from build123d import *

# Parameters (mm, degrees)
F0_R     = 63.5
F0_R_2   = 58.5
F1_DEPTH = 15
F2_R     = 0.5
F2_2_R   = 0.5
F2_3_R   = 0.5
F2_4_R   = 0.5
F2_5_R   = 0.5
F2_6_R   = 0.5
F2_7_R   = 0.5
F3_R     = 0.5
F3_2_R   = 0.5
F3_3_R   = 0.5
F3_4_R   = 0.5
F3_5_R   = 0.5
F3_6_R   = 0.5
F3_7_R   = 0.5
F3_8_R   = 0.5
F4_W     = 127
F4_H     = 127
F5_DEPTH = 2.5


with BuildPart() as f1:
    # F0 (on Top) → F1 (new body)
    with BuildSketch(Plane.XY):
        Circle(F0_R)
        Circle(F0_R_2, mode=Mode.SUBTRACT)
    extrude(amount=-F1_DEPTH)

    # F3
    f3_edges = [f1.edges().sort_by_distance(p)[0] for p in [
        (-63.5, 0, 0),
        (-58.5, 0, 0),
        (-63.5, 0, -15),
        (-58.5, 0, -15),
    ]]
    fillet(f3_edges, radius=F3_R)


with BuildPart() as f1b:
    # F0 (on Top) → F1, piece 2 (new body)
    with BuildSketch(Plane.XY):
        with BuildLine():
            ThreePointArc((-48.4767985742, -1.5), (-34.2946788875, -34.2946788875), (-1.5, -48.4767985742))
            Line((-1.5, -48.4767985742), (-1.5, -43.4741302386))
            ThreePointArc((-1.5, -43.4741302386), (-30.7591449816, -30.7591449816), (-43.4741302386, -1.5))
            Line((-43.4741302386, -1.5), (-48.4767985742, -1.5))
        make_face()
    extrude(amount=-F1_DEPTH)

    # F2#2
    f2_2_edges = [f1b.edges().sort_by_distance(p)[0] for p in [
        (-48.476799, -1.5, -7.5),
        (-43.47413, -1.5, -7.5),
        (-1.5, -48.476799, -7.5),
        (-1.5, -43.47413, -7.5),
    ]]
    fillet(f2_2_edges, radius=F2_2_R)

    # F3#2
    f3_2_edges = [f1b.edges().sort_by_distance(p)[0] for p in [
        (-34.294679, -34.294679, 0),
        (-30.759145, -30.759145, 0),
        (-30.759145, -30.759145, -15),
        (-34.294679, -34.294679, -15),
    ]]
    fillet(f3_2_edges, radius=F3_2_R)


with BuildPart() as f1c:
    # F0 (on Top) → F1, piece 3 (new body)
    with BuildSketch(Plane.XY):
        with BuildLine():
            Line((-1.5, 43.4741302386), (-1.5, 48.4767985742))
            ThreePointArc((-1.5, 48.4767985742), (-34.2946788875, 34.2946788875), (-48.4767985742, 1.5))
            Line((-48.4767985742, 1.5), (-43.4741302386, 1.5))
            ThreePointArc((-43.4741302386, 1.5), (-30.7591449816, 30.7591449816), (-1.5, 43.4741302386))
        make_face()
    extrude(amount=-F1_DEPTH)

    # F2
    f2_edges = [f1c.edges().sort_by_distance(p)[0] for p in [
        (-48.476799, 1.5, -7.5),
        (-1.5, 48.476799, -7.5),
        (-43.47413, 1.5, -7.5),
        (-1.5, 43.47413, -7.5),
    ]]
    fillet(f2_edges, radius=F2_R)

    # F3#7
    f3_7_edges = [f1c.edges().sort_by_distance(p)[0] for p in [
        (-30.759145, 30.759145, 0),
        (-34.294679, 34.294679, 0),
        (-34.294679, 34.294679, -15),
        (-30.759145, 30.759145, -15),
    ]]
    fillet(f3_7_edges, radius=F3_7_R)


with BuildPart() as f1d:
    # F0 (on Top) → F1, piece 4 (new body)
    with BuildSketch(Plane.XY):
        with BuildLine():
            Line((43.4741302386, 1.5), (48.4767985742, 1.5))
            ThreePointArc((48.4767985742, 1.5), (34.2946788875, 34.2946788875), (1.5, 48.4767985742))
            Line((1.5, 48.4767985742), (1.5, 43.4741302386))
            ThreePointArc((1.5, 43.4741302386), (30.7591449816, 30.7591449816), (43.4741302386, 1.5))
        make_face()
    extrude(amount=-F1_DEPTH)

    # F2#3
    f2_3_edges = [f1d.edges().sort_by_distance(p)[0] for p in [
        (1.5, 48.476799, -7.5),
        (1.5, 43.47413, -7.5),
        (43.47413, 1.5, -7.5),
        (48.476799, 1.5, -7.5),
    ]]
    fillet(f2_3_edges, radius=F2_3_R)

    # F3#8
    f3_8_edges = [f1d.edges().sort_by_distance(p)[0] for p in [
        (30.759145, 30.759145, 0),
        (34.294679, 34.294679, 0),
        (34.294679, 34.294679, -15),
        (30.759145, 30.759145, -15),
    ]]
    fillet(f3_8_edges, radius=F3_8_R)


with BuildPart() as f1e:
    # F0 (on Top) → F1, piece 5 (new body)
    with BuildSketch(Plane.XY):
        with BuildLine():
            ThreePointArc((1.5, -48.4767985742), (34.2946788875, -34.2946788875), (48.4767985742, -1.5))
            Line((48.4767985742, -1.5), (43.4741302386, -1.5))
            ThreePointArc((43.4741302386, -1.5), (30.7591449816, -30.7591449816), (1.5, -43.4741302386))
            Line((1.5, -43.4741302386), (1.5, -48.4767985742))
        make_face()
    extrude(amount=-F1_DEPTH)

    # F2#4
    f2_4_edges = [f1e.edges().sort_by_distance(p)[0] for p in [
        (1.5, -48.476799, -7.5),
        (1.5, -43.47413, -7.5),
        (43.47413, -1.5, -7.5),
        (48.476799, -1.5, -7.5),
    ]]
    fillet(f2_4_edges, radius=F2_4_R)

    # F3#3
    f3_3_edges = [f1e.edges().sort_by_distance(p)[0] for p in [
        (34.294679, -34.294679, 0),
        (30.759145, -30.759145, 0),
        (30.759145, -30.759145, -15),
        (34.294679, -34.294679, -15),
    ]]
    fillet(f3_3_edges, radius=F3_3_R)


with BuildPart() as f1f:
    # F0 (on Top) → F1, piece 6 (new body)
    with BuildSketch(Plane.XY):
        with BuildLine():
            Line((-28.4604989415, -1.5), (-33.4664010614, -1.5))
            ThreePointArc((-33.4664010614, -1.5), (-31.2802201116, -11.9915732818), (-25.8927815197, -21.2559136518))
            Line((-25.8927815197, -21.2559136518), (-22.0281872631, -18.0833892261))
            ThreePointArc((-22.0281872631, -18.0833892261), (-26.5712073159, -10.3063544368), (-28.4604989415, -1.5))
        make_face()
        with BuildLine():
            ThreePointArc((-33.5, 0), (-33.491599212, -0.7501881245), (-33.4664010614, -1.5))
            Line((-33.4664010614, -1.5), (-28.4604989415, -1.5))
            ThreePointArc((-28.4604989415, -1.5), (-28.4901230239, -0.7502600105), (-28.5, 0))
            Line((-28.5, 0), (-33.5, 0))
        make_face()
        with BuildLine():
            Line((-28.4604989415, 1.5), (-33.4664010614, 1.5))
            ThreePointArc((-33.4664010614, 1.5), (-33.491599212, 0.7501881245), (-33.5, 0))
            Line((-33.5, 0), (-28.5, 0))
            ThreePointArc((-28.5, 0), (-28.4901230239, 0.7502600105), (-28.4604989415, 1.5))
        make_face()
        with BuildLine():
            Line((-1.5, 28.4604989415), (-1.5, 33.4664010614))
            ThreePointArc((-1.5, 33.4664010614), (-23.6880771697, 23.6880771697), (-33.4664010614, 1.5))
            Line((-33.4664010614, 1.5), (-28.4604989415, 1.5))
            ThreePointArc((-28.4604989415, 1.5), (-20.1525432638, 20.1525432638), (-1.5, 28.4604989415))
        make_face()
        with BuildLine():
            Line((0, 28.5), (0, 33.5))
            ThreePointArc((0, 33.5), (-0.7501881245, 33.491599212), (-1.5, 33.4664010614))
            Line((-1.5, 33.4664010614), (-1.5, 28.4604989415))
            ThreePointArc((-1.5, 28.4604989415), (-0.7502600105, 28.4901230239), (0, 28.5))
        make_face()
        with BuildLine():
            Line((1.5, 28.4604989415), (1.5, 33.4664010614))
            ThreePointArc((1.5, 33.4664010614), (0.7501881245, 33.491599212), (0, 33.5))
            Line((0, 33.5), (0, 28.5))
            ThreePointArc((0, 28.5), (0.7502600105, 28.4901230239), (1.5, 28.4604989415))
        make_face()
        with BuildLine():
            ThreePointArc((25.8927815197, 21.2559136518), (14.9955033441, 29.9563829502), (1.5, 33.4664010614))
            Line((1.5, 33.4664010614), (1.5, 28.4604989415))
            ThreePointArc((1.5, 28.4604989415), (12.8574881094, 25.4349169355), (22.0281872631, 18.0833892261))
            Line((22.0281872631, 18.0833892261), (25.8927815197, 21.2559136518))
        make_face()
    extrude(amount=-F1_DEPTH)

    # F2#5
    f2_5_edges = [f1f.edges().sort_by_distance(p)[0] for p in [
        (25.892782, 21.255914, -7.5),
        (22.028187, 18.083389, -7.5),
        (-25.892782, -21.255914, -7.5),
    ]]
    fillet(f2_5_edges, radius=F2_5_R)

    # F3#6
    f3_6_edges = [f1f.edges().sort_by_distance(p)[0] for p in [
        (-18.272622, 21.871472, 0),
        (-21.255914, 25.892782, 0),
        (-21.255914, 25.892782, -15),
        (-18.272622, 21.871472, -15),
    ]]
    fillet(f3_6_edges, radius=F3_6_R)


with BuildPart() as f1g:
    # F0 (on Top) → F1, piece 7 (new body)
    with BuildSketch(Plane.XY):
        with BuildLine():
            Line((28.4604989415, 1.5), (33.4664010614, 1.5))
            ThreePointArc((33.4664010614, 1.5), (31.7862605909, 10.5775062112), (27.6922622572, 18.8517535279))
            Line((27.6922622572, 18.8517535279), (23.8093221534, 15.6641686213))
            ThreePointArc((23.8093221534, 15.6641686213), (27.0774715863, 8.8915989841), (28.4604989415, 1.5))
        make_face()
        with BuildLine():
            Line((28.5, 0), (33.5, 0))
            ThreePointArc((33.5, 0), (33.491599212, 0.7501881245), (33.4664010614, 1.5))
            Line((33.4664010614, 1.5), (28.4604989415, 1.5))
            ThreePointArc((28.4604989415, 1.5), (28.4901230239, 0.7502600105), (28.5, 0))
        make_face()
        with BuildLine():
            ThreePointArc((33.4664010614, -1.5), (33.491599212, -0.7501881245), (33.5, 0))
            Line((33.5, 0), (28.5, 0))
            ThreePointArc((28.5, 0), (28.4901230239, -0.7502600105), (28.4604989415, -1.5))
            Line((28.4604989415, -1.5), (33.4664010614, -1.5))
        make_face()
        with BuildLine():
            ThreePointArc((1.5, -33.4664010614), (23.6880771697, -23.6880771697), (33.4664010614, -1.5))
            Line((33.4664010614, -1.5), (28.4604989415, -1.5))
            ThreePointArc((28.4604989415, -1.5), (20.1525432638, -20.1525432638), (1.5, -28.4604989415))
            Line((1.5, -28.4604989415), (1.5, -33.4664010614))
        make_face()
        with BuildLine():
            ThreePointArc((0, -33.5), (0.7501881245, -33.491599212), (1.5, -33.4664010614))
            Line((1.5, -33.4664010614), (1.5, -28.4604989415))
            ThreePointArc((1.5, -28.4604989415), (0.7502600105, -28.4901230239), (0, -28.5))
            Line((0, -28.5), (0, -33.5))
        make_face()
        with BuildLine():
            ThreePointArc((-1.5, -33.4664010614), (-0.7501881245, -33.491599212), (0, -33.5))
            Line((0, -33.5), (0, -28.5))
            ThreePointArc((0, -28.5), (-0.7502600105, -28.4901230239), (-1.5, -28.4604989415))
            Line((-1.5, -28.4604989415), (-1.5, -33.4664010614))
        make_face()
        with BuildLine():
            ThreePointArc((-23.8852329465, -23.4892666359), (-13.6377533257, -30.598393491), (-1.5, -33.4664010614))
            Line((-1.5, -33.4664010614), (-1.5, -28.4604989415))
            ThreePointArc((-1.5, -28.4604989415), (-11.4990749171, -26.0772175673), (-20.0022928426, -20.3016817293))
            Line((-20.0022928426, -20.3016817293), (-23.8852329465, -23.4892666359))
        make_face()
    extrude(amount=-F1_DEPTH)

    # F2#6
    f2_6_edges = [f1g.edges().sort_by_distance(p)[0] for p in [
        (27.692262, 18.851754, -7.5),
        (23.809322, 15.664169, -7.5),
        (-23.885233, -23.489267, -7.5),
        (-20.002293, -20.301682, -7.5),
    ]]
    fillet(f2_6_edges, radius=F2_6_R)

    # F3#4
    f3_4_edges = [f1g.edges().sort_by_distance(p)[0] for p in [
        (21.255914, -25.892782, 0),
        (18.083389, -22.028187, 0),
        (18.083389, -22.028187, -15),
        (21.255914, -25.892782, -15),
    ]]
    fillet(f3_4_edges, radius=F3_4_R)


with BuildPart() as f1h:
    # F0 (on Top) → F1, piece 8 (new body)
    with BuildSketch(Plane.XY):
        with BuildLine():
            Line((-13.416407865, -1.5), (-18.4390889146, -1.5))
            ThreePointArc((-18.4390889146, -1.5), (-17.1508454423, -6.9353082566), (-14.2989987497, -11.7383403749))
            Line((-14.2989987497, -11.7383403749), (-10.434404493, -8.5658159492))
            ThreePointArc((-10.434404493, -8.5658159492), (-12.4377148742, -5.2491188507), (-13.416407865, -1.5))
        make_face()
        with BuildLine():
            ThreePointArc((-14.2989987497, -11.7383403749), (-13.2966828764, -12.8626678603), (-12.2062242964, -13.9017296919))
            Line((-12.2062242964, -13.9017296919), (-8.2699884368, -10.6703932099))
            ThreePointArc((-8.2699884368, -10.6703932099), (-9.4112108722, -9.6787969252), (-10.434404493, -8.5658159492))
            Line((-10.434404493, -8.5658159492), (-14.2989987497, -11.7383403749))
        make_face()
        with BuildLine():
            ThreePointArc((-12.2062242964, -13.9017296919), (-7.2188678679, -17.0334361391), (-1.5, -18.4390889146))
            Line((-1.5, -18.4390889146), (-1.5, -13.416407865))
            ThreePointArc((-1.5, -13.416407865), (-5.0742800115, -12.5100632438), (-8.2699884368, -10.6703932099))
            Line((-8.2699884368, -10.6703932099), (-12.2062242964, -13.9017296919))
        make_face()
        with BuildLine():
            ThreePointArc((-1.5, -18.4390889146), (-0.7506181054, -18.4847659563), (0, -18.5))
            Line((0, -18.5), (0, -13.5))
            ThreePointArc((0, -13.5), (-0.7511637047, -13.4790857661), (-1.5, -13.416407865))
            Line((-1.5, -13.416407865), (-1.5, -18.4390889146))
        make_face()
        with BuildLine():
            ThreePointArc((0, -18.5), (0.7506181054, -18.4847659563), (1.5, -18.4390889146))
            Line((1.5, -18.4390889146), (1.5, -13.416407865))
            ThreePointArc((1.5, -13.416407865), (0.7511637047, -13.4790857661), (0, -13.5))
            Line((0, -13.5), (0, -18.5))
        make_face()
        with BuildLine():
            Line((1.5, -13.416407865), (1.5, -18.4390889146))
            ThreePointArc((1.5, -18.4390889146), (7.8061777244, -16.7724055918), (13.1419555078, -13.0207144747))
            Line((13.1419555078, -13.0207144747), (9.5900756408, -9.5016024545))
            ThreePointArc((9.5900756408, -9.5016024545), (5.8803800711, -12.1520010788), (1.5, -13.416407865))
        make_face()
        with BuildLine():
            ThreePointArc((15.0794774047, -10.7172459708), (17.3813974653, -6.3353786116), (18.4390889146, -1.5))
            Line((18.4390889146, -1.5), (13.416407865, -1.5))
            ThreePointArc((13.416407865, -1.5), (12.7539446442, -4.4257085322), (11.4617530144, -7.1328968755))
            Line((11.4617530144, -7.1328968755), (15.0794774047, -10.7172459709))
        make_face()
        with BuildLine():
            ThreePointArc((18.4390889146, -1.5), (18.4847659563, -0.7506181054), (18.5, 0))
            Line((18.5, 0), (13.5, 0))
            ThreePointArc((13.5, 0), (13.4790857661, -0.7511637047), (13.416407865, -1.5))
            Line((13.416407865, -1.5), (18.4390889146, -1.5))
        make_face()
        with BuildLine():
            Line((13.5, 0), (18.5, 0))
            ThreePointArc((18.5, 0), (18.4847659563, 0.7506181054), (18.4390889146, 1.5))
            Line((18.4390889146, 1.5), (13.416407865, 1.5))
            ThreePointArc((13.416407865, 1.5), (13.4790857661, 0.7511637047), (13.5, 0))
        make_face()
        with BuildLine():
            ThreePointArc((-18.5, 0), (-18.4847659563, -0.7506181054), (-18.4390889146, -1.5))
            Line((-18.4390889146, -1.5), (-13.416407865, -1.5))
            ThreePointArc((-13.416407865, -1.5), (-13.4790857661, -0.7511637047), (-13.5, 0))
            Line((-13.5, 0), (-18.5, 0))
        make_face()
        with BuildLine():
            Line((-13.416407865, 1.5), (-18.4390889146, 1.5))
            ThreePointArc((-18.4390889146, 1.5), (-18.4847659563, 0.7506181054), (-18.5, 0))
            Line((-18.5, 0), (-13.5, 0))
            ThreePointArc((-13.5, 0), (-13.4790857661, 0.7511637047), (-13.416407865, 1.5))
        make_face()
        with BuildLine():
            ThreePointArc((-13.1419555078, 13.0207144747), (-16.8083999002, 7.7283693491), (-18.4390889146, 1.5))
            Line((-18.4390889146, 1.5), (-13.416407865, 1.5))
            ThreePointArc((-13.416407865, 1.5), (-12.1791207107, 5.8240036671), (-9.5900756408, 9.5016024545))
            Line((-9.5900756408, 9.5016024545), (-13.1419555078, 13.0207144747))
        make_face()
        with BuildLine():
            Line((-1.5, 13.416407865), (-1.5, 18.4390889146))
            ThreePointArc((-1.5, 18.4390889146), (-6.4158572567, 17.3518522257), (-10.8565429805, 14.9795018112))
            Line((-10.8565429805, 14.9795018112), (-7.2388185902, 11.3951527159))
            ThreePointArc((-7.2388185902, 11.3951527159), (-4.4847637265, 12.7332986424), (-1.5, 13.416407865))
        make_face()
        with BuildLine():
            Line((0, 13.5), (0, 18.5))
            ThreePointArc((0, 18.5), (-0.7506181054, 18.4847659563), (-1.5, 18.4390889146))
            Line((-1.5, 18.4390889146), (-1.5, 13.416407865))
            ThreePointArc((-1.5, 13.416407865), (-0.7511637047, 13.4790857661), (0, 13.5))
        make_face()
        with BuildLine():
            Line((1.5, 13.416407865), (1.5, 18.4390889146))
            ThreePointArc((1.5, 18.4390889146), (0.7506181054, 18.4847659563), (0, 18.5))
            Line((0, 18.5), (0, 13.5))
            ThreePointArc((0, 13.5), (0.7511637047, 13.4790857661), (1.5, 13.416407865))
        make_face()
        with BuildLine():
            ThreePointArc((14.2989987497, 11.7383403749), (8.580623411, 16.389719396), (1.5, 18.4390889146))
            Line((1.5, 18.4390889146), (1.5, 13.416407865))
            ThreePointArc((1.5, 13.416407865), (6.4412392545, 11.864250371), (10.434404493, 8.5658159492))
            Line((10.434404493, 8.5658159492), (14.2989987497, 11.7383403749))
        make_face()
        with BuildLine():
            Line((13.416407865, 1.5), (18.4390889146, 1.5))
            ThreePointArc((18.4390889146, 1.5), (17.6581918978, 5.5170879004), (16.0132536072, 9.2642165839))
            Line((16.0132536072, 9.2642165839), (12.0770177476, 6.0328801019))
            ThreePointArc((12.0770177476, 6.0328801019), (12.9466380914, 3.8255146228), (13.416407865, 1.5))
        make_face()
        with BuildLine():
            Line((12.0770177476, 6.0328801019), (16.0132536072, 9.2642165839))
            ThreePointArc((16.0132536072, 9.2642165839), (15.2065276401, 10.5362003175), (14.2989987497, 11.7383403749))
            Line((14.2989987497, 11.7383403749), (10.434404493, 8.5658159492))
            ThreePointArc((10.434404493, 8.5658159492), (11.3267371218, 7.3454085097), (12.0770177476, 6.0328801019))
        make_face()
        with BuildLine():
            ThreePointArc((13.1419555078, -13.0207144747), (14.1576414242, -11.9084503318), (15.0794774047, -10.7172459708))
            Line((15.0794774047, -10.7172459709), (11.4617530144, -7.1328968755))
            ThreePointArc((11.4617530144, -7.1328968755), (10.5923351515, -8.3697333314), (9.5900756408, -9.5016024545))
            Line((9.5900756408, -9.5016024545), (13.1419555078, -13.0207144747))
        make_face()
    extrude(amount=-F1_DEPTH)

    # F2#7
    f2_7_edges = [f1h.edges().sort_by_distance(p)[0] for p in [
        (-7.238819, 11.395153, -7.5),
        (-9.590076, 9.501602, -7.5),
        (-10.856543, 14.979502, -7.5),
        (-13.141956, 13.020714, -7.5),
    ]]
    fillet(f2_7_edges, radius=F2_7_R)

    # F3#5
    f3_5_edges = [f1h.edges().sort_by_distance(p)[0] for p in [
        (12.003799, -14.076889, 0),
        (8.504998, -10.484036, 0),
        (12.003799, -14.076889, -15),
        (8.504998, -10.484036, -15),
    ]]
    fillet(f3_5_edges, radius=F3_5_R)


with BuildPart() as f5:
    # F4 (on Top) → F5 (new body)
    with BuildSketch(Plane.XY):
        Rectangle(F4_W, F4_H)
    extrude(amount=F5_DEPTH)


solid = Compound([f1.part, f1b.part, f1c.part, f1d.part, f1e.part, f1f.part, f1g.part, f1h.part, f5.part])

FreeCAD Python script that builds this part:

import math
import FreeCAD as App
import Part
import Sketcher
from FreeCAD import Vector


def edges_at(feature, points):
    """Names of the edges that pass closest to the given points."""
    edges = feature.Shape.Edges
    near = lambda p: min(range(len(edges)), key=lambda i: edges[i].distToShape(Part.Vertex(*p))[0])
    return sorted({f"Edge{near(p) + 1}" for p in points})

doc = App.newDocument("Part")
body = doc.addObject("PartDesign::Body", "Body")

sketch1 = doc.addObject("Sketcher::SketchObject", "Sketch")
body.addObject(sketch1)
sketch1.AttachmentSupport = (doc.XY_Plane, [""])
sketch1.MapMode = "FlatFace"
sketch1.addGeometry([
    Part.Circle(Vector(0, 0, 0), Vector(0, 0, 1), 64),
    Part.Circle(Vector(0, 0, 0), Vector(0, 0, 1), 58),
], False)
sketch1.addConstraint([
    Sketcher.Constraint("Coincident", 0, 3, -1, 1),
    Sketcher.Constraint("Coincident", 1, 3, -1, 1),
    Sketcher.Constraint("Diameter", 0, 127.0),
    Sketcher.Constraint("Diameter", 1, 117.0),
])
pad1 = doc.addObject("PartDesign::Pad", "Pad")
body.addObject(pad1)
pad1.Profile = sketch1
pad1.Length = 15
pad1.Reversed = True
doc.recompute()

fillet = doc.addObject("PartDesign::Fillet", "Fillet")
body.addObject(fillet)
fillet.Base = (pad1, edges_at(pad1, [
    (-63.5, 0, 0),
    (-58.5, 0, 0),
    (-63.5, 0, -15),
    (-58.5, 0, -15),
]))
fillet.Radius = 0.5
body2 = doc.addObject("PartDesign::Body", "Body001")

sketch2 = doc.addObject("Sketcher::SketchObject", "Sketch001")
body2.addObject(sketch2)
sketch2.AttachmentSupport = (doc.getObject("XY_Plane001"), [""])
sketch2.MapMode = "FlatFace"
sketch2.addGeometry([
    Part.ArcOfCircle(Part.Circle(Vector(0, 0, 0), Vector(0, 0, 1), 48), math.radians(-178), math.radians(-92)),
    Part.LineSegment(Vector(-2, -48, 0), Vector(-2, -43, 0)),
    Part.ArcOfCircle(Part.Circle(Vector(0, 0, 0), Vector(0, 0, 1), 44), math.radians(-178), math.radians(-92)),
    Part.LineSegment(Vector(-43, -2, 0), Vector(-48, -2, 0)),
], False)
sketch2.addConstraint([
    Sketcher.Constraint("Coincident", 0, 2, 1, 1),
    Sketcher.Constraint("Coincident", 1, 2, 2, 2),
    Sketcher.Constraint("Coincident", 2, 1, 3, 1),
    Sketcher.Constraint("Coincident", 3, 2, 0, 1),
    Sketcher.Constraint("Vertical", 1),
    Sketcher.Constraint("Horizontal", 3),
    Sketcher.Constraint("Coincident", 0, 3, -1, 1),
    Sketcher.Constraint("Coincident", 2, 3, -1, 1),
    Sketcher.Constraint("Radius", 0, 48.5),
    Sketcher.Constraint("Radius", 2, 43.5),
    Sketcher.Constraint("DistanceX", 0, 2, -1, 1, 1.5),
    Sketcher.Constraint("DistanceY", 2, 1, -1, 1, 1.5),
])
pad2 = doc.addObject("PartDesign::Pad", "Pad001")
body2.addObject(pad2)
pad2.Profile = sketch2
pad2.Length = 15
pad2.Reversed = True
doc.recompute()

fillet2 = doc.addObject("PartDesign::Fillet", "Fillet001")
body2.addObject(fillet2)
fillet2.Base = (pad2, edges_at(pad2, [
    (-48.477, -1.5, -7.5),
    (-43.474, -1.5, -7.5),
    (-1.5, -48.477, -7.5),
    (-1.5, -43.474, -7.5),
]))
fillet2.Radius = 0.5
doc.recompute()

fillet3 = doc.addObject("PartDesign::Fillet", "Fillet002")
body2.addObject(fillet3)
fillet3.Base = (fillet2, edges_at(fillet2, [
    (-34.295, -34.295, 0),
    (-30.759, -30.759, 0),
    (-30.759, -30.759, -15),
    (-34.295, -34.295, -15),
]))
fillet3.Radius = 0.5
body3 = doc.addObject("PartDesign::Body", "Body002")

sketch3 = doc.addObject("Sketcher::SketchObject", "Sketch002")
body3.addObject(sketch3)
sketch3.AttachmentSupport = (doc.getObject("XY_Plane002"), [""])
sketch3.MapMode = "FlatFace"
sketch3.addGeometry([
    Part.LineSegment(Vector(-2, 43, 0), Vector(-2, 48, 0)),
    Part.ArcOfCircle(Part.Circle(Vector(0, 0, 0), Vector(0, 0, 1), 48), math.radians(92), math.radians(178)),
    Part.LineSegment(Vector(-48, 2, 0), Vector(-43, 2, 0)),
    Part.ArcOfCircle(Part.Circle(Vector(0, 0, 0), Vector(0, 0, 1), 44), math.radians(92), math.radians(178)),
], False)
sketch3.addConstraint([
    Sketcher.Constraint("Coincident", 0, 2, 1, 1),
    Sketcher.Constraint("Coincident", 1, 2, 2, 1),
    Sketcher.Constraint("Coincident", 2, 2, 3, 2),
    Sketcher.Constraint("Coincident", 3, 1, 0, 1),
    Sketcher.Constraint("Vertical", 0),
    Sketcher.Constraint("Horizontal", 2),
    Sketcher.Constraint("Coincident", 1, 3, -1, 1),
    Sketcher.Constraint("Coincident", 3, 3, -1, 1),
    Sketcher.Constraint("Radius", 1, 48.5),
    Sketcher.Constraint("Radius", 3, 43.5),
    Sketcher.Constraint("DistanceX", 0, 2, -1, 1, 1.5),
    Sketcher.Constraint("DistanceY", -1, 1, 1, 2, 1.5),
])
pad3 = doc.addObject("PartDesign::Pad", "Pad002")
body3.addObject(pad3)
pad3.Profile = sketch3
pad3.Length = 15
pad3.Reversed = True
doc.recompute()

fillet4 = doc.addObject("PartDesign::Fillet", "Fillet003")
body3.addObject(fillet4)
fillet4.Base = (pad3, edges_at(pad3, [
    (-48.477, 1.5, -7.5),
    (-1.5, 48.477, -7.5),
    (-43.474, 1.5, -7.5),
    (-1.5, 43.474, -7.5),
]))
fillet4.Radius = 0.5
doc.recompute()

fillet5 = doc.addObject("PartDesign::Fillet", "Fillet004")
body3.addObject(fillet5)
fillet5.Base = (fillet4, edges_at(fillet4, [
    (-30.759, 30.759, 0),
    (-34.295, 34.295, 0),
    (-34.295, 34.295, -15),
    (-30.759, 30.759, -15),
]))
fillet5.Radius = 0.5
body4 = doc.addObject("PartDesign::Body", "Body003")

sketch4 = doc.addObject("Sketcher::SketchObject", "Sketch003")
body4.addObject(sketch4)
sketch4.AttachmentSupport = (doc.getObject("XY_Plane003"), [""])
sketch4.MapMode = "FlatFace"
sketch4.addGeometry([
    Part.LineSegment(Vector(43, 2, 0), Vector(48, 2, 0)),
    Part.ArcOfCircle(Part.Circle(Vector(0, 0, 0), Vector(0, 0, 1), 48), math.radians(2), math.radians(88)),
    Part.LineSegment(Vector(2, 48, 0), Vector(2, 43, 0)),
    Part.ArcOfCircle(Part.Circle(Vector(0, 0, 0), Vector(0, 0, 1), 44), math.radians(2), math.radians(88)),
], False)
sketch4.addConstraint([
    Sketcher.Constraint("Coincident", 0, 2, 1, 1),
    Sketcher.Constraint("Coincident", 1, 2, 2, 1),
    Sketcher.Constraint("Coincident", 2, 2, 3, 2),
    Sketcher.Constraint("Coincident", 3, 1, 0, 1),
    Sketcher.Constraint("Horizontal", 0),
    Sketcher.Constraint("Vertical", 2),
    Sketcher.Constraint("Coincident", 1, 3, -1, 1),
    Sketcher.Constraint("Coincident", 3, 3, -1, 1),
    Sketcher.Constraint("Radius", 1, 48.5),
    Sketcher.Constraint("Radius", 3, 43.5),
    Sketcher.Constraint("DistanceY", -1, 1, 0, 2, 1.5),
    Sketcher.Constraint("DistanceX", -1, 1, 1, 2, 1.5),
])
pad4 = doc.addObject("PartDesign::Pad", "Pad003")
body4.addObject(pad4)
pad4.Profile = sketch4
pad4.Length = 15
pad4.Reversed = True
doc.recompute()

fillet6 = doc.addObject("PartDesign::Fillet", "Fillet005")
body4.addObject(fillet6)
fillet6.Base = (pad4, edges_at(pad4, [
    (1.5, 48.477, -7.5),
    (1.5, 43.474, -7.5),
    (43.474, 1.5, -7.5),
    (48.477, 1.5, -7.5),
]))
fillet6.Radius = 0.5
doc.recompute()

fillet7 = doc.addObject("PartDesign::Fillet", "Fillet006")
body4.addObject(fillet7)
fillet7.Base = (fillet6, edges_at(fillet6, [
    (30.759, 30.759, 0),
    (34.295, 34.295, 0),
    (34.295, 34.295, -15),
    (30.759, 30.759, -15),
]))
fillet7.Radius = 0.5
body5 = doc.addObject("PartDesign::Body", "Body004")

sketch5 = doc.addObject("Sketcher::SketchObject", "Sketch004")
body5.addObject(sketch5)
sketch5.AttachmentSupport = (doc.getObject("XY_Plane004"), [""])
sketch5.MapMode = "FlatFace"
sketch5.addGeometry([
    Part.ArcOfCircle(Part.Circle(Vector(0, 0, 0), Vector(0, 0, 1), 48), math.radians(-88), math.radians(-2)),
    Part.LineSegment(Vector(48, -2, 0), Vector(43, -2, 0)),
    Part.ArcOfCircle(Part.Circle(Vector(0, 0, 0), Vector(0, 0, 1), 44), math.radians(-88), math.radians(-2)),
    Part.LineSegment(Vector(2, -43, 0), Vector(2, -48, 0)),
], False)
sketch5.addConstraint([
    Sketcher.Constraint("Coincident", 0, 2, 1, 1),
    Sketcher.Constraint("Coincident", 1, 2, 2, 2),
    Sketcher.Constraint("Coincident", 2, 1, 3, 1),
    Sketcher.Constraint("Coincident", 3, 2, 0, 1),
    Sketcher.Constraint("Horizontal", 1),
    Sketcher.Constraint("Vertical", 3),
    Sketcher.Constraint("Coincident", 0, 3, -1, 1),
    Sketcher.Constraint("Coincident", 2, 3, -1, 1),
    Sketcher.Constraint("Radius", 0, 48.5),
    Sketcher.Constraint("Radius", 2, 43.5),
    Sketcher.Constraint("DistanceY", 0, 2, -1, 1, 1.5),
    Sketcher.Constraint("DistanceX", -1, 1, 2, 1, 1.5),
])
pad5 = doc.addObject("PartDesign::Pad", "Pad004")
body5.addObject(pad5)
pad5.Profile = sketch5
pad5.Length = 15
pad5.Reversed = True
doc.recompute()

fillet8 = doc.addObject("PartDesign::Fillet", "Fillet007")
body5.addObject(fillet8)
fillet8.Base = (pad5, edges_at(pad5, [
    (1.5, -48.477, -7.5),
    (1.5, -43.474, -7.5),
    (43.474, -1.5, -7.5),
    (48.477, -1.5, -7.5),
]))
fillet8.Radius = 0.5
doc.recompute()

fillet9 = doc.addObject("PartDesign::Fillet", "Fillet008")
body5.addObject(fillet9)
fillet9.Base = (fillet8, edges_at(fillet8, [
    (34.295, -34.295, 0),
    (30.759, -30.759, 0),
    (30.759, -30.759, -15),
    (34.295, -34.295, -15),
]))
fillet9.Radius = 0.5
body6 = doc.addObject("PartDesign::Body", "Body005")

sketch6 = doc.addObject("Sketcher::SketchObject", "Sketch005")
body6.addObject(sketch6)
sketch6.AttachmentSupport = (doc.getObject("XY_Plane005"), [""])
sketch6.MapMode = "FlatFace"
sketch6.addGeometry([
    Part.ArcOfCircle(Part.Circle(Vector(0, 0, 0), Vector(0, 0, 1), 33.5), math.radians(-177), math.radians(-141)),
    Part.LineSegment(Vector(-25.9, -21.3, 0), Vector(-22, -18.1, 0)),
    Part.ArcOfCircle(Part.Circle(Vector(0, 0, 0), Vector(0, 0, 1), 28.5), math.radians(-177), math.radians(-141)),
    Part.ArcOfCircle(Part.Circle(Vector(0, 0, 0), Vector(0, 0, 1), 28.5), math.radians(180), math.radians(183.02)),
    Part.ArcOfCircle(Part.Circle(Vector(0, 0, 0), Vector(0, 0, 1), 28.5), math.radians(176.98), math.radians(180)),
    Part.ArcOfCircle(Part.Circle(Vector(0, 0, 0), Vector(0, 0, 1), 28.5), math.radians(93), math.radians(177)),
    Part.ArcOfCircle(Part.Circle(Vector(0, 0, 0), Vector(0, 0, 1), 28.5), math.radians(90), math.radians(93.02)),
    Part.ArcOfCircle(Part.Circle(Vector(0, 0, 0), Vector(0, 0, 1), 28.5), math.radians(86.98), math.radians(90)),
    Part.ArcOfCircle(Part.Circle(Vector(0, 0, 0), Vector(0, 0, 1), 28.5), math.radians(39), math.radians(87)),
    Part.LineSegment(Vector(22, 18.1, 0), Vector(25.9, 21.3, 0)),
    Part.ArcOfCircle(Part.Circle(Vector(0, 0, 0), Vector(0, 0, 1), 33.5), math.radians(39), math.radians(87)),
    Part.ArcOfCircle(Part.Circle(Vector(0, 0, 0), Vector(0, 0, 1), 33.5), math.radians(87.43), math.radians(90)),
    Part.ArcOfCircle(Part.Circle(Vector(0, 0, 0), Vector(0, 0, 1), 33.5), math.radians(90), math.radians(92.57)),
    Part.ArcOfCircle(Part.Circle(Vector(0, 0, 0), Vector(0, 0, 1), 33.5), math.radians(93), math.radians(177)),
    Part.ArcOfCircle(Part.Circle(Vector(0, 0, 0), Vector(0, 0, 1), 33.5), math.radians(177.43), math.radians(180)),
    Part.ArcOfCircle(Part.Circle(Vector(0, 0, 0), Vector(0, 0, 1), 33.5), math.radians(-180), math.radians(-177.43)),
], False)
sketch6.addConstraint([
    Sketcher.Constraint("Coincident", 0, 2, 1, 1),
    Sketcher.Constraint("Coincident", 1, 2, 2, 2),
    Sketcher.Constraint("Tangent", 2, 1, 3, 2),
    Sketcher.Constraint("Tangent", 3, 1, 4, 2),
    Sketcher.Constraint("Tangent", 4, 1, 5, 2),
    Sketcher.Constraint("Tangent", 5, 1, 6, 2),
    Sketcher.Constraint("Tangent", 6, 1, 7, 2),
    Sketcher.Constraint("Tangent", 7, 1, 8, 2),
    Sketcher.Constraint("Coincident", 8, 1, 9, 1),
    Sketcher.Constraint("Coincident", 9, 2, 10, 1),
    Sketcher.Constraint("Tangent", 10, 2, 11, 1),
    Sketcher.Constraint("Tangent", 11, 2, 12, 1),
    Sketcher.Constraint("Tangent", 12, 2, 13, 1),
    Sketcher.Constraint("Tangent", 13, 2, 14, 1),
    Sketcher.Constraint("Tangent", 14, 2, 15, 1),
    Sketcher.Constraint("Tangent", 15, 2, 0, 1),
    Sketcher.Constraint("Coincident", 0, 3, -1, 1),
    Sketcher.Constraint("Coincident", 2, 3, -1, 1),
    Sketcher.Constraint("Coincident", 4, 3, -1, 1),
    Sketcher.Constraint("Coincident", 6, 3, -1, 1),
    Sketcher.Constraint("Coincident", 8, 3, -1, 1),
    Sketcher.Constraint("Coincident", 10, 3, -1, 1),
    Sketcher.Constraint("Coincident", 12, 3, -1, 1),
    Sketcher.Constraint("Coincident", 14, 3, -1, 1),
    Sketcher.Constraint("PointOnObject", 3, 1, -1),
    Sketcher.Constraint("PointOnObject", 6, 1, -2),
    Sketcher.Constraint("PointOnObject", 11, 2, -2),
    Sketcher.Constraint("PointOnObject", 14, 2, -1),
    Sketcher.Constraint("Parallel", 1, 9),
    Sketcher.Constraint("Horizontal", 5, 1, 7, 1),
    Sketcher.Constraint("Horizontal", 10, 2, 12, 2),
    Sketcher.Constraint("Horizontal", 4, 1, 13, 2),
    Sketcher.Constraint("Horizontal", 2, 1, 15, 2),
    Sketcher.Constraint("Vertical", 2, 1, 4, 1),
    Sketcher.Constraint("Vertical", 7, 1, 10, 2),
    Sketcher.Constraint("Radius", 0, 33.5),
    Sketcher.Constraint("Radius", 2, 28.5),
    Sketcher.Constraint("DistanceY", 2, 1, 4, 1, 3.0),
    Sketcher.Constraint("DistanceX", 5, 1, 7, 1, 3.0),
    Sketcher.Constraint("DistanceX", 0, 2, -1, 1, 25.892782),
    Sketcher.Constraint("DistanceY", 1, 2, -1, 1, 18.083389),
    Sketcher.Constraint("DistanceY", -1, 1, 8, 1, 18.083389),
])
pad6 = doc.addObject("PartDesign::Pad", "Pad005")
body6.addObject(pad6)
pad6.Profile = sketch6
pad6.Length = 15
pad6.Reversed = True
doc.recompute()

fillet10 = doc.addObject("PartDesign::Fillet", "Fillet009")
body6.addObject(fillet10)
fillet10.Base = (pad6, edges_at(pad6, [(25.893, 21.256, -7.5), (22.028, 18.083, -7.5), (-25.893, -21.256, -7.5)]))
fillet10.Radius = 0.5
doc.recompute()

fillet11 = doc.addObject("PartDesign::Fillet", "Fillet010")
body6.addObject(fillet11)
fillet11.Base = (fillet10, edges_at(fillet10, [
    (-20.153, 20.153, 0),
    (-23.688, 23.688, 0),
    (-23.688, 23.688, -15),
    (-20.153, 20.153, -15),
]))
fillet11.Radius = 0.5
body7 = doc.addObject("PartDesign::Body", "Body006")

sketch7 = doc.addObject("Sketcher::SketchObject", "Sketch006")
body7.addObject(sketch7)
sketch7.AttachmentSupport = (doc.getObject("XY_Plane006"), [""])
sketch7.MapMode = "FlatFace"
sketch7.addGeometry([
    Part.ArcOfCircle(Part.Circle(Vector(0, 0, 0), Vector(0, 0, 1), 33.5), math.radians(3), math.radians(34)),
    Part.LineSegment(Vector(27.7, 18.9, 0), Vector(23.8, 15.7, 0)),
    Part.ArcOfCircle(Part.Circle(Vector(0, 0, 0), Vector(0, 0, 1), 28.5), math.radians(3), math.radians(33)),
    Part.ArcOfCircle(Part.Circle(Vector(0, 0, 0), Vector(0, 0, 1), 28.5), math.radians(0), math.radians(3.02)),
    Part.ArcOfCircle(Part.Circle(Vector(0, 0, 0), Vector(0, 0, 1), 28.5), math.radians(-3.02), math.radians(0)),
    Part.ArcOfCircle(Part.Circle(Vector(0, 0, 0), Vector(0, 0, 1), 28.5), math.radians(-87), math.radians(-3)),
    Part.ArcOfCircle(Part.Circle(Vector(0, 0, 0), Vector(0, 0, 1), 28.5), math.radians(-90), math.radians(-86.98)),
    Part.ArcOfCircle(Part.Circle(Vector(0, 0, 0), Vector(0, 0, 1), 28.5), math.radians(-93.02), math.radians(-90)),
    Part.ArcOfCircle(Part.Circle(Vector(0, 0, 0), Vector(0, 0, 1), 28.5), math.radians(-135), math.radians(-93)),
    Part.LineSegment(Vector(-20, -20.3, 0), Vector(-23.9, -23.5, 0)),
    Part.ArcOfCircle(Part.Circle(Vector(0, 0, 0), Vector(0, 0, 1), 33.5), math.radians(-135), math.radians(-93)),
    Part.ArcOfCircle(Part.Circle(Vector(0, 0, 0), Vector(0, 0, 1), 33.5), math.radians(-92.57), math.radians(-90)),
    Part.ArcOfCircle(Part.Circle(Vector(0, 0, 0), Vector(0, 0, 1), 33.5), math.radians(-90), math.radians(-87.43)),
    Part.ArcOfCircle(Part.Circle(Vector(0, 0, 0), Vector(0, 0, 1), 33.5), math.radians(-87), math.radians(-3)),
    Part.ArcOfCircle(Part.Circle(Vector(0, 0, 0), Vector(0, 0, 1), 33.5), math.radians(-2.57), math.radians(0)),
    Part.ArcOfCircle(Part.Circle(Vector(0, 0, 0), Vector(0, 0, 1), 33.5), math.radians(0), math.radians(2.57)),
], False)
sketch7.addConstraint([
    Sketcher.Constraint("Coincident", 0, 2, 1, 1),
    Sketcher.Constraint("Coincident", 1, 2, 2, 2),
    Sketcher.Constraint("Tangent", 2, 1, 3, 2),
    Sketcher.Constraint("Tangent", 3, 1, 4, 2),
    Sketcher.Constraint("Tangent", 4, 1, 5, 2),
    Sketcher.Constraint("Tangent", 5, 1, 6, 2),
    Sketcher.Constraint("Tangent", 6, 1, 7, 2),
    Sketcher.Constraint("Tangent", 7, 1, 8, 2),
    Sketcher.Constraint("Coincident", 8, 1, 9, 1),
    Sketcher.Constraint("Coincident", 9, 2, 10, 1),
    Sketcher.Constraint("Tangent", 10, 2, 11, 1),
    Sketcher.Constraint("Tangent", 11, 2, 12, 1),
    Sketcher.Constraint("Tangent", 12, 2, 13, 1),
    Sketcher.Constraint("Tangent", 13, 2, 14, 1),
    Sketcher.Constraint("Tangent", 14, 2, 15, 1),
    Sketcher.Constraint("Tangent", 15, 2, 0, 1),
    Sketcher.Constraint("Coincident", 0, 3, -1, 1),
    Sketcher.Constraint("Coincident", 2, 3, -1, 1),
    Sketcher.Constraint("Coincident", 4, 3, -1, 1),
    Sketcher.Constraint("Coincident", 6, 3, -1, 1),
    Sketcher.Constraint("Coincident", 8, 3, -1, 1),
    Sketcher.Constraint("Coincident", 10, 3, -1, 1),
    Sketcher.Constraint("Coincident", 12, 3, -1, 1),
    Sketcher.Constraint("Coincident", 14, 3, -1, 1),
    Sketcher.Constraint("PointOnObject", 3, 1, -1),
    Sketcher.Constraint("PointOnObject", 6, 1, -2),
    Sketcher.Constraint("PointOnObject", 11, 2, -2),
    Sketcher.Constraint("PointOnObject", 14, 2, -1),
    Sketcher.Constraint("Parallel", 1, 9),
    Sketcher.Constraint("Horizontal", 5, 1, 7, 1),
    Sketcher.Constraint("Horizontal", 10, 2, 12, 2),
    Sketcher.Constraint("Horizontal", 4, 1, 13, 2),
    Sketcher.Constraint("Horizontal", 2, 1, 15, 2),
    Sketcher.Constraint("Vertical", 2, 1, 4, 1),
    Sketcher.Constraint("Vertical", 7, 1, 10, 2),
    Sketcher.Constraint("Equal", 1, 9),
    Sketcher.Constraint("Radius", 0, 33.5),
    Sketcher.Constraint("Radius", 2, 28.5),
    Sketcher.Constraint("DistanceY", 4, 1, 2, 1, 3.0),
    Sketcher.Constraint("DistanceX", 7, 1, 5, 1, 3.0),
    Sketcher.Constraint("DistanceY", -1, 1, 1, 2, 15.664169),
    Sketcher.Constraint("DistanceY", 8, 1, -1, 1, 20.301682),
])
pad7 = doc.addObject("PartDesign::Pad", "Pad006")
body7.addObject(pad7)
pad7.Profile = sketch7
pad7.Length = 15
pad7.Reversed = True
doc.recompute()

fillet12 = doc.addObject("PartDesign::Fillet", "Fillet011")
body7.addObject(fillet12)
fillet12.Base = (pad7, edges_at(pad7, [
    (27.692, 18.852, -7.5),
    (23.809, 15.664, -7.5),
    (-23.885, -23.489, -7.5),
    (-20.002, -20.302, -7.5),
]))
fillet12.Radius = 0.5
doc.recompute()

fillet13 = doc.addObject("PartDesign::Fillet", "Fillet012")
body7.addObject(fillet13)
fillet13.Base = (fillet12, edges_at(fillet12, [
    (23.688, -23.688, 0),
    (20.153, -20.153, 0),
    (20.153, -20.153, -15),
    (23.688, -23.688, -15),
]))
fillet13.Radius = 0.5
body8 = doc.addObject("PartDesign::Body", "Body007")

sketch8 = doc.addObject("Sketcher::SketchObject", "Sketch007")
body8.addObject(sketch8)
sketch8.AttachmentSupport = (doc.getObject("XY_Plane007"), [""])
sketch8.MapMode = "FlatFace"
sketch8.addGeometry([
    Part.ArcOfCircle(Part.Circle(Vector(0, 0, 0), Vector(0, 0, 1), 18.5), math.radians(-175), math.radians(-141)),
    Part.ArcOfCircle(Part.Circle(Vector(0, 0, 0), Vector(0, 0, 1), 18.5), math.radians(-140.62), math.radians(-131.28)),
    Part.ArcOfCircle(Part.Circle(Vector(0, 0, 0), Vector(0, 0, 1), 18.5), math.radians(-131), math.radians(-95)),
    Part.ArcOfCircle(Part.Circle(Vector(0, 0, 0), Vector(0, 0, 1), 18.5), math.radians(-94.65), math.radians(-90)),
    Part.ArcOfCircle(Part.Circle(Vector(0, 0, 0), Vector(0, 0, 1), 18.5), math.radians(-90), math.radians(-85.35)),
    Part.ArcOfCircle(Part.Circle(Vector(0, 0, 0), Vector(0, 0, 1), 18.5), math.radians(-85), math.radians(-45)),
    Part.ArcOfCircle(Part.Circle(Vector(0, 0, 0), Vector(0, 0, 1), 18.5), math.radians(-44.73), math.radians(-35.4)),
    Part.ArcOfCircle(Part.Circle(Vector(0, 0, 0), Vector(0, 0, 1), 18.5), math.radians(-35), math.radians(-5)),
    Part.ArcOfCircle(Part.Circle(Vector(0, 0, 0), Vector(0, 0, 1), 18.5), math.radians(-4.65), math.radians(0)),
    Part.ArcOfCircle(Part.Circle(Vector(0, 0, 0), Vector(0, 0, 1), 18.5), math.radians(0), math.radians(4.65)),
    Part.ArcOfCircle(Part.Circle(Vector(0, 0, 0), Vector(0, 0, 1), 18.5), math.radians(5), math.radians(30)),
    Part.ArcOfCircle(Part.Circle(Vector(0, 0, 0), Vector(0, 0, 1), 18.5), math.radians(30.05), math.radians(39.38)),
    Part.ArcOfCircle(Part.Circle(Vector(0, 0, 0), Vector(0, 0, 1), 18.5), math.radians(39), math.radians(85)),
    Part.ArcOfCircle(Part.Circle(Vector(0, 0, 0), Vector(0, 0, 1), 18.5), math.radians(85.35), math.radians(90)),
    Part.ArcOfCircle(Part.Circle(Vector(0, 0, 0), Vector(0, 0, 1), 18.5), math.radians(90), math.radians(94.65)),
    Part.ArcOfCircle(Part.Circle(Vector(0, 0, 0), Vector(0, 0, 1), 18.5), math.radians(95), math.radians(126)),
    Part.LineSegment(Vector(-10.9, 15, 0), Vector(-7.2, 11.4, 0)),
    Part.ArcOfCircle(Part.Circle(Vector(0, 0, 0), Vector(0, 0, 1), 13.5), math.radians(96), math.radians(122)),
    Part.ArcOfCircle(Part.Circle(Vector(0, 0, 0), Vector(0, 0, 1), 13.5), math.radians(90), math.radians(96.38)),
    Part.ArcOfCircle(Part.Circle(Vector(0, 0, 0), Vector(0, 0, 1), 13.5), math.radians(83.62), math.radians(90)),
    Part.ArcOfCircle(Part.Circle(Vector(0, 0, 0), Vector(0, 0, 1), 13.5), math.radians(39), math.radians(84)),
    Part.ArcOfCircle(Part.Circle(Vector(0, 0, 0), Vector(0, 0, 1), 13.5), math.radians(26.54), math.radians(39.38)),
    Part.ArcOfCircle(Part.Circle(Vector(0, 0, 0), Vector(0, 0, 1), 13.5), math.radians(6), math.radians(27)),
    Part.ArcOfCircle(Part.Circle(Vector(0, 0, 0), Vector(0, 0, 1), 13.5), math.radians(0), math.radians(6.38)),
    Part.ArcOfCircle(Part.Circle(Vector(0, 0, 0), Vector(0, 0, 1), 13.5), math.radians(-6.38), math.radians(0)),
    Part.ArcOfCircle(Part.Circle(Vector(0, 0, 0), Vector(0, 0, 1), 13.5), math.radians(-32), math.radians(-6)),
    Part.ArcOfCircle(Part.Circle(Vector(0, 0, 0), Vector(0, 0, 1), 13.5), math.radians(-44.73), math.radians(-31.89)),
    Part.ArcOfCircle(Part.Circle(Vector(0, 0, 0), Vector(0, 0, 1), 13.5), math.radians(-84), math.radians(-45)),
    Part.ArcOfCircle(Part.Circle(Vector(0, 0, 0), Vector(0, 0, 1), 13.5), math.radians(-90), math.radians(-83.62)),
    Part.ArcOfCircle(Part.Circle(Vector(0, 0, 0), Vector(0, 0, 1), 13.5), math.radians(-96.38), math.radians(-90)),
    Part.ArcOfCircle(Part.Circle(Vector(0, 0, 0), Vector(0, 0, 1), 13.5), math.radians(-128), math.radians(-96)),
    Part.ArcOfCircle(Part.Circle(Vector(0, 0, 0), Vector(0, 0, 1), 13.5), math.radians(-140.62), math.radians(-127.78)),
    Part.ArcOfCircle(Part.Circle(Vector(0, 0, 0), Vector(0, 0, 1), 13.5), math.radians(-174), math.radians(-141)),
    Part.ArcOfCircle(Part.Circle(Vector(0, 0, 0), Vector(0, 0, 1), 13.5), math.radians(180), math.radians(186.38)),
    Part.ArcOfCircle(Part.Circle(Vector(0, 0, 0), Vector(0, 0, 1), 13.5), math.radians(173.62), math.radians(180)),
    Part.ArcOfCircle(Part.Circle(Vector(0, 0, 0), Vector(0, 0, 1), 13.5), math.radians(135), math.radians(174)),
    Part.LineSegment(Vector(-9.6, 9.5, 0), Vector(-13.1, 13, 0)),
    Part.ArcOfCircle(Part.Circle(Vector(0, 0, 0), Vector(0, 0, 1), 18.5), math.radians(135), math.radians(175)),
    Part.ArcOfCircle(Part.Circle(Vector(0, 0, 0), Vector(0, 0, 1), 18.5), math.radians(175.35), math.radians(180)),
    Part.ArcOfCircle(Part.Circle(Vector(0, 0, 0), Vector(0, 0, 1), 18.5), math.radians(-180), math.radians(-175.35)),
], False)
sketch8.addConstraint([
    Sketcher.Constraint("Tangent", 0, 2, 1, 1),
    Sketcher.Constraint("Tangent", 1, 2, 2, 1),
    Sketcher.Constraint("Tangent", 2, 2, 3, 1),
    Sketcher.Constraint("Tangent", 3, 2, 4, 1),
    Sketcher.Constraint("Tangent", 4, 2, 5, 1),
    Sketcher.Constraint("Tangent", 5, 2, 6, 1),
    Sketcher.Constraint("Tangent", 6, 2, 7, 1),
    Sketcher.Constraint("Tangent", 7, 2, 8, 1),
    Sketcher.Constraint("Tangent", 8, 2, 9, 1),
    Sketcher.Constraint("Tangent", 9, 2, 10, 1),
    Sketcher.Constraint("Tangent", 10, 2, 11, 1),
    Sketcher.Constraint("Tangent", 11, 2, 12, 1),
    Sketcher.Constraint("Tangent", 12, 2, 13, 1),
    Sketcher.Constraint("Tangent", 13, 2, 14, 1),
    Sketcher.Constraint("Tangent", 14, 2, 15, 1),
    Sketcher.Constraint("Coincident", 15, 2, 16, 1),
    Sketcher.Constraint("Coincident", 16, 2, 17, 2),
    Sketcher.Constraint("Tangent", 17, 1, 18, 2),
    Sketcher.Constraint("Tangent", 18, 1, 19, 2),
    Sketcher.Constraint("Tangent", 19, 1, 20, 2),
    Sketcher.Constraint("Tangent", 20, 1, 21, 2),
    Sketcher.Constraint("Tangent", 21, 1, 22, 2),
    Sketcher.Constraint("Tangent", 22, 1, 23, 2),
    Sketcher.Constraint("Tangent", 23, 1, 24, 2),
    Sketcher.Constraint("Tangent", 24, 1, 25, 2),
    Sketcher.Constraint("Tangent", 25, 1, 26, 2),
    Sketcher.Constraint("Tangent", 26, 1, 27, 2),
    Sketcher.Constraint("Tangent", 27, 1, 28, 2),
    Sketcher.Constraint("Tangent", 28, 1, 29, 2),
    Sketcher.Constraint("Tangent", 29, 1, 30, 2),
    Sketcher.Constraint("Tangent", 30, 1, 31, 2),
    Sketcher.Constraint("Tangent", 31, 1, 32, 2),
    Sketcher.Constraint("Tangent", 32, 1, 33, 2),
    Sketcher.Constraint("Tangent", 33, 1, 34, 2),
    Sketcher.Constraint("Tangent", 34, 1, 35, 2),
    Sketcher.Constraint("Coincident", 35, 1, 36, 1),
    Sketcher.Constraint("Coincident", 36, 2, 37, 1),
    Sketcher.Constraint("Tangent", 37, 2, 38, 1),
    Sketcher.Constraint("Tangent", 38, 2, 39, 1),
    Sketcher.Constraint("Tangent", 39, 2, 0, 1),
    Sketcher.Constraint("Coincident", 0, 3, -1, 1),
    Sketcher.Constraint("Coincident", 2, 3, -1, 1),
    Sketcher.Constraint("Coincident", 4, 3, -1, 1),
    Sketcher.Constraint("Coincident", 6, 3, -1, 1),
    Sketcher.Constraint("Coincident", 8, 3, -1, 1),
    Sketcher.Constraint("Coincident", 10, 3, -1, 1),
    Sketcher.Constraint("Coincident", 12, 3, -1, 1),
    Sketcher.Constraint("Coincident", 14, 3, -1, 1),
    Sketcher.Constraint("Coincident", 17, 3, -1, 1),
    Sketcher.Constraint("Coincident", 19, 3, -1, 1),
    Sketcher.Constraint("Coincident", 21, 3, -1, 1),
    Sketcher.Constraint("Coincident", 23, 3, -1, 1),
    Sketcher.Constraint("Coincident", 25, 3, -1, 1),
    Sketcher.Constraint("Coincident", 27, 3, -1, 1),
    Sketcher.Constraint("Coincident", 29, 3, -1, 1),
    Sketcher.Constraint("Coincident", 31, 3, -1, 1),
    Sketcher.Constraint("Coincident", 33, 3, -1, 1),
    Sketcher.Constraint("Coincident", 35, 3, -1, 1),
    Sketcher.Constraint("Coincident", 37, 3, -1, 1),
    Sketcher.Constraint("Equal", 14, 15),
    Sketcher.Constraint("Equal", 15, 37),
    Sketcher.Constraint("PointOnObject", 3, 2, -2),
    Sketcher.Constraint("PointOnObject", 8, 2, -1),
    Sketcher.Constraint("PointOnObject", 13, 2, -2),
    Sketcher.Constraint("PointOnObject", 18, 1, -2),
    Sketcher.Constraint("PointOnObject", 23, 1, -1),
    Sketcher.Constraint("PointOnObject", 28, 1, -2),
    Sketcher.Constraint("PointOnObject", 33, 1, -1),
    Sketcher.Constraint("PointOnObject", 38, 2, -1),
    Sketcher.Constraint("Parallel", 16, 36),
    Sketcher.Constraint("Horizontal", 2, 2, 4, 2),
    Sketcher.Constraint("Horizontal", 12, 2, 14, 2),
    Sketcher.Constraint("Horizontal", 17, 1, 19, 1),
    Sketcher.Constraint("Horizontal", 9, 2, 22, 1),
    Sketcher.Constraint("Horizontal", 7, 2, 24, 1),
    Sketcher.Constraint("Horizontal", 27, 1, 29, 1),
    Sketcher.Constraint("Horizontal", 24, 1, 32, 1),
    Sketcher.Constraint("Horizontal", 22, 1, 34, 1),
    Sketcher.Constraint("Horizontal", 34, 1, 37, 2),
    Sketcher.Constraint("Horizontal", 32, 1, 39, 2),
    Sketcher.Constraint("Vertical", 7, 2, 9, 2),
    Sketcher.Constraint("Vertical", 4, 2, 12, 2),
    Sketcher.Constraint("Vertical", 14, 2, 17, 1),
    Sketcher.Constraint("Vertical", 19, 1, 27, 1),
    Sketcher.Constraint("Radius", 0, 18.5),
    Sketcher.Constraint("Radius", 17, 13.5),
    Sketcher.Constraint("DistanceX", 2, 2, -1, 1, 1.5),
    Sketcher.Constraint("DistanceY", 7, 2, -1, 1, 1.5),
    Sketcher.Constraint("DistanceX", 0, 2, -1, 1, 14.298999),
    Sketcher.Constraint("DistanceX", -1, 1, 11, 2, 14.298999),
    Sketcher.Constraint("DistanceY", -1, 1, 15, 2, 14.979502),
    Sketcher.Constraint("Distance", 16, 5.09269),
    Sketcher.Constraint("DistanceY", 1, 2, -1, 1, 13.90173),
    Sketcher.Constraint("DistanceY", -1, 1, 21, 1, 6.03288),
    Sketcher.Constraint("DistanceX", 30, 1, -1, 1, 8.269988),
    Sketcher.Constraint("DistanceX", -1, 1, 5, 2, 13.141956),
    Sketcher.Constraint("DistanceX", -1, 1, 6, 2, 15.079477),
    Sketcher.Constraint("DistanceX", -1, 1, 10, 2, 16.013254),
    Sketcher.Constraint("DistanceX", -1, 1, 20, 1, 10.434404),
    Sketcher.Constraint("DistanceX", -1, 1, 25, 1, 11.461753),
    Sketcher.Constraint("DistanceX", -1, 1, 26, 1, 9.590076),
    Sketcher.Constraint("DistanceX", 31, 1, -1, 1, 10.434404),
    Sketcher.Constraint("DistanceX", 35, 1, -1, 1, 9.590076),
])
pad8 = doc.addObject("PartDesign::Pad", "Pad007")
body8.addObject(pad8)
pad8.Profile = sketch8
pad8.Length = 15
pad8.Reversed = True
doc.recompute()

fillet14 = doc.addObject("PartDesign::Fillet", "Fillet013")
body8.addObject(fillet14)
fillet14.Base = (pad8, edges_at(pad8, [
    (-7.239, 11.395, -7.5),
    (-9.59, 9.502, -7.5),
    (-10.857, 14.98, -7.5),
    (-13.142, 13.021, -7.5),
]))
fillet14.Radius = 0.5
doc.recompute()

fillet15 = doc.addObject("PartDesign::Fillet", "Fillet014")
body8.addObject(fillet15)
fillet15.Base = (fillet14, edges_at(fillet14, [
    (7.806, -16.772, 0),
    (5.88, -12.152, 0),
    (7.806, -16.772, -15),
    (5.88, -12.152, -15),
]))
fillet15.Radius = 0.5
body9 = doc.addObject("PartDesign::Body", "Body008")

sketch9 = doc.addObject("Sketcher::SketchObject", "Sketch008")
body9.addObject(sketch9)
sketch9.AttachmentSupport = (doc.getObject("XY_Plane008"), [""])
sketch9.MapMode = "FlatFace"
sketch9.addGeometry([
    Part.LineSegment(Vector(-64, 64, 0), Vector(-64, -64, 0)),
    Part.LineSegment(Vector(-64, -64, 0), Vector(64, -64, 0)),
    Part.LineSegment(Vector(64, -64, 0), Vector(64, 64, 0)),
    Part.LineSegment(Vector(64, 64, 0), Vector(-64, 64, 0)),
], False)
sketch9.addConstraint([
    Sketcher.Constraint("Coincident", 0, 2, 1, 1),
    Sketcher.Constraint("Coincident", 1, 2, 2, 1),
    Sketcher.Constraint("Coincident", 2, 2, 3, 1),
    Sketcher.Constraint("Coincident", 3, 2, 0, 1),
    Sketcher.Constraint("Vertical", 0),
    Sketcher.Constraint("Horizontal", 1),
    Sketcher.Constraint("Vertical", 2),
    Sketcher.Constraint("Horizontal", 3),
    Sketcher.Constraint("Symmetric", 0, 2, 2, 2, -1, 1),
    Sketcher.Constraint("Equal", 3, 0),
    Sketcher.Constraint("DistanceX", 1, 1, 1, 2, 127.0),
])
pad9 = doc.addObject("PartDesign::Pad", "Pad008")
body9.addObject(pad9)
pad9.Profile = sketch9
pad9.Length = 2.5

doc.recompute()
